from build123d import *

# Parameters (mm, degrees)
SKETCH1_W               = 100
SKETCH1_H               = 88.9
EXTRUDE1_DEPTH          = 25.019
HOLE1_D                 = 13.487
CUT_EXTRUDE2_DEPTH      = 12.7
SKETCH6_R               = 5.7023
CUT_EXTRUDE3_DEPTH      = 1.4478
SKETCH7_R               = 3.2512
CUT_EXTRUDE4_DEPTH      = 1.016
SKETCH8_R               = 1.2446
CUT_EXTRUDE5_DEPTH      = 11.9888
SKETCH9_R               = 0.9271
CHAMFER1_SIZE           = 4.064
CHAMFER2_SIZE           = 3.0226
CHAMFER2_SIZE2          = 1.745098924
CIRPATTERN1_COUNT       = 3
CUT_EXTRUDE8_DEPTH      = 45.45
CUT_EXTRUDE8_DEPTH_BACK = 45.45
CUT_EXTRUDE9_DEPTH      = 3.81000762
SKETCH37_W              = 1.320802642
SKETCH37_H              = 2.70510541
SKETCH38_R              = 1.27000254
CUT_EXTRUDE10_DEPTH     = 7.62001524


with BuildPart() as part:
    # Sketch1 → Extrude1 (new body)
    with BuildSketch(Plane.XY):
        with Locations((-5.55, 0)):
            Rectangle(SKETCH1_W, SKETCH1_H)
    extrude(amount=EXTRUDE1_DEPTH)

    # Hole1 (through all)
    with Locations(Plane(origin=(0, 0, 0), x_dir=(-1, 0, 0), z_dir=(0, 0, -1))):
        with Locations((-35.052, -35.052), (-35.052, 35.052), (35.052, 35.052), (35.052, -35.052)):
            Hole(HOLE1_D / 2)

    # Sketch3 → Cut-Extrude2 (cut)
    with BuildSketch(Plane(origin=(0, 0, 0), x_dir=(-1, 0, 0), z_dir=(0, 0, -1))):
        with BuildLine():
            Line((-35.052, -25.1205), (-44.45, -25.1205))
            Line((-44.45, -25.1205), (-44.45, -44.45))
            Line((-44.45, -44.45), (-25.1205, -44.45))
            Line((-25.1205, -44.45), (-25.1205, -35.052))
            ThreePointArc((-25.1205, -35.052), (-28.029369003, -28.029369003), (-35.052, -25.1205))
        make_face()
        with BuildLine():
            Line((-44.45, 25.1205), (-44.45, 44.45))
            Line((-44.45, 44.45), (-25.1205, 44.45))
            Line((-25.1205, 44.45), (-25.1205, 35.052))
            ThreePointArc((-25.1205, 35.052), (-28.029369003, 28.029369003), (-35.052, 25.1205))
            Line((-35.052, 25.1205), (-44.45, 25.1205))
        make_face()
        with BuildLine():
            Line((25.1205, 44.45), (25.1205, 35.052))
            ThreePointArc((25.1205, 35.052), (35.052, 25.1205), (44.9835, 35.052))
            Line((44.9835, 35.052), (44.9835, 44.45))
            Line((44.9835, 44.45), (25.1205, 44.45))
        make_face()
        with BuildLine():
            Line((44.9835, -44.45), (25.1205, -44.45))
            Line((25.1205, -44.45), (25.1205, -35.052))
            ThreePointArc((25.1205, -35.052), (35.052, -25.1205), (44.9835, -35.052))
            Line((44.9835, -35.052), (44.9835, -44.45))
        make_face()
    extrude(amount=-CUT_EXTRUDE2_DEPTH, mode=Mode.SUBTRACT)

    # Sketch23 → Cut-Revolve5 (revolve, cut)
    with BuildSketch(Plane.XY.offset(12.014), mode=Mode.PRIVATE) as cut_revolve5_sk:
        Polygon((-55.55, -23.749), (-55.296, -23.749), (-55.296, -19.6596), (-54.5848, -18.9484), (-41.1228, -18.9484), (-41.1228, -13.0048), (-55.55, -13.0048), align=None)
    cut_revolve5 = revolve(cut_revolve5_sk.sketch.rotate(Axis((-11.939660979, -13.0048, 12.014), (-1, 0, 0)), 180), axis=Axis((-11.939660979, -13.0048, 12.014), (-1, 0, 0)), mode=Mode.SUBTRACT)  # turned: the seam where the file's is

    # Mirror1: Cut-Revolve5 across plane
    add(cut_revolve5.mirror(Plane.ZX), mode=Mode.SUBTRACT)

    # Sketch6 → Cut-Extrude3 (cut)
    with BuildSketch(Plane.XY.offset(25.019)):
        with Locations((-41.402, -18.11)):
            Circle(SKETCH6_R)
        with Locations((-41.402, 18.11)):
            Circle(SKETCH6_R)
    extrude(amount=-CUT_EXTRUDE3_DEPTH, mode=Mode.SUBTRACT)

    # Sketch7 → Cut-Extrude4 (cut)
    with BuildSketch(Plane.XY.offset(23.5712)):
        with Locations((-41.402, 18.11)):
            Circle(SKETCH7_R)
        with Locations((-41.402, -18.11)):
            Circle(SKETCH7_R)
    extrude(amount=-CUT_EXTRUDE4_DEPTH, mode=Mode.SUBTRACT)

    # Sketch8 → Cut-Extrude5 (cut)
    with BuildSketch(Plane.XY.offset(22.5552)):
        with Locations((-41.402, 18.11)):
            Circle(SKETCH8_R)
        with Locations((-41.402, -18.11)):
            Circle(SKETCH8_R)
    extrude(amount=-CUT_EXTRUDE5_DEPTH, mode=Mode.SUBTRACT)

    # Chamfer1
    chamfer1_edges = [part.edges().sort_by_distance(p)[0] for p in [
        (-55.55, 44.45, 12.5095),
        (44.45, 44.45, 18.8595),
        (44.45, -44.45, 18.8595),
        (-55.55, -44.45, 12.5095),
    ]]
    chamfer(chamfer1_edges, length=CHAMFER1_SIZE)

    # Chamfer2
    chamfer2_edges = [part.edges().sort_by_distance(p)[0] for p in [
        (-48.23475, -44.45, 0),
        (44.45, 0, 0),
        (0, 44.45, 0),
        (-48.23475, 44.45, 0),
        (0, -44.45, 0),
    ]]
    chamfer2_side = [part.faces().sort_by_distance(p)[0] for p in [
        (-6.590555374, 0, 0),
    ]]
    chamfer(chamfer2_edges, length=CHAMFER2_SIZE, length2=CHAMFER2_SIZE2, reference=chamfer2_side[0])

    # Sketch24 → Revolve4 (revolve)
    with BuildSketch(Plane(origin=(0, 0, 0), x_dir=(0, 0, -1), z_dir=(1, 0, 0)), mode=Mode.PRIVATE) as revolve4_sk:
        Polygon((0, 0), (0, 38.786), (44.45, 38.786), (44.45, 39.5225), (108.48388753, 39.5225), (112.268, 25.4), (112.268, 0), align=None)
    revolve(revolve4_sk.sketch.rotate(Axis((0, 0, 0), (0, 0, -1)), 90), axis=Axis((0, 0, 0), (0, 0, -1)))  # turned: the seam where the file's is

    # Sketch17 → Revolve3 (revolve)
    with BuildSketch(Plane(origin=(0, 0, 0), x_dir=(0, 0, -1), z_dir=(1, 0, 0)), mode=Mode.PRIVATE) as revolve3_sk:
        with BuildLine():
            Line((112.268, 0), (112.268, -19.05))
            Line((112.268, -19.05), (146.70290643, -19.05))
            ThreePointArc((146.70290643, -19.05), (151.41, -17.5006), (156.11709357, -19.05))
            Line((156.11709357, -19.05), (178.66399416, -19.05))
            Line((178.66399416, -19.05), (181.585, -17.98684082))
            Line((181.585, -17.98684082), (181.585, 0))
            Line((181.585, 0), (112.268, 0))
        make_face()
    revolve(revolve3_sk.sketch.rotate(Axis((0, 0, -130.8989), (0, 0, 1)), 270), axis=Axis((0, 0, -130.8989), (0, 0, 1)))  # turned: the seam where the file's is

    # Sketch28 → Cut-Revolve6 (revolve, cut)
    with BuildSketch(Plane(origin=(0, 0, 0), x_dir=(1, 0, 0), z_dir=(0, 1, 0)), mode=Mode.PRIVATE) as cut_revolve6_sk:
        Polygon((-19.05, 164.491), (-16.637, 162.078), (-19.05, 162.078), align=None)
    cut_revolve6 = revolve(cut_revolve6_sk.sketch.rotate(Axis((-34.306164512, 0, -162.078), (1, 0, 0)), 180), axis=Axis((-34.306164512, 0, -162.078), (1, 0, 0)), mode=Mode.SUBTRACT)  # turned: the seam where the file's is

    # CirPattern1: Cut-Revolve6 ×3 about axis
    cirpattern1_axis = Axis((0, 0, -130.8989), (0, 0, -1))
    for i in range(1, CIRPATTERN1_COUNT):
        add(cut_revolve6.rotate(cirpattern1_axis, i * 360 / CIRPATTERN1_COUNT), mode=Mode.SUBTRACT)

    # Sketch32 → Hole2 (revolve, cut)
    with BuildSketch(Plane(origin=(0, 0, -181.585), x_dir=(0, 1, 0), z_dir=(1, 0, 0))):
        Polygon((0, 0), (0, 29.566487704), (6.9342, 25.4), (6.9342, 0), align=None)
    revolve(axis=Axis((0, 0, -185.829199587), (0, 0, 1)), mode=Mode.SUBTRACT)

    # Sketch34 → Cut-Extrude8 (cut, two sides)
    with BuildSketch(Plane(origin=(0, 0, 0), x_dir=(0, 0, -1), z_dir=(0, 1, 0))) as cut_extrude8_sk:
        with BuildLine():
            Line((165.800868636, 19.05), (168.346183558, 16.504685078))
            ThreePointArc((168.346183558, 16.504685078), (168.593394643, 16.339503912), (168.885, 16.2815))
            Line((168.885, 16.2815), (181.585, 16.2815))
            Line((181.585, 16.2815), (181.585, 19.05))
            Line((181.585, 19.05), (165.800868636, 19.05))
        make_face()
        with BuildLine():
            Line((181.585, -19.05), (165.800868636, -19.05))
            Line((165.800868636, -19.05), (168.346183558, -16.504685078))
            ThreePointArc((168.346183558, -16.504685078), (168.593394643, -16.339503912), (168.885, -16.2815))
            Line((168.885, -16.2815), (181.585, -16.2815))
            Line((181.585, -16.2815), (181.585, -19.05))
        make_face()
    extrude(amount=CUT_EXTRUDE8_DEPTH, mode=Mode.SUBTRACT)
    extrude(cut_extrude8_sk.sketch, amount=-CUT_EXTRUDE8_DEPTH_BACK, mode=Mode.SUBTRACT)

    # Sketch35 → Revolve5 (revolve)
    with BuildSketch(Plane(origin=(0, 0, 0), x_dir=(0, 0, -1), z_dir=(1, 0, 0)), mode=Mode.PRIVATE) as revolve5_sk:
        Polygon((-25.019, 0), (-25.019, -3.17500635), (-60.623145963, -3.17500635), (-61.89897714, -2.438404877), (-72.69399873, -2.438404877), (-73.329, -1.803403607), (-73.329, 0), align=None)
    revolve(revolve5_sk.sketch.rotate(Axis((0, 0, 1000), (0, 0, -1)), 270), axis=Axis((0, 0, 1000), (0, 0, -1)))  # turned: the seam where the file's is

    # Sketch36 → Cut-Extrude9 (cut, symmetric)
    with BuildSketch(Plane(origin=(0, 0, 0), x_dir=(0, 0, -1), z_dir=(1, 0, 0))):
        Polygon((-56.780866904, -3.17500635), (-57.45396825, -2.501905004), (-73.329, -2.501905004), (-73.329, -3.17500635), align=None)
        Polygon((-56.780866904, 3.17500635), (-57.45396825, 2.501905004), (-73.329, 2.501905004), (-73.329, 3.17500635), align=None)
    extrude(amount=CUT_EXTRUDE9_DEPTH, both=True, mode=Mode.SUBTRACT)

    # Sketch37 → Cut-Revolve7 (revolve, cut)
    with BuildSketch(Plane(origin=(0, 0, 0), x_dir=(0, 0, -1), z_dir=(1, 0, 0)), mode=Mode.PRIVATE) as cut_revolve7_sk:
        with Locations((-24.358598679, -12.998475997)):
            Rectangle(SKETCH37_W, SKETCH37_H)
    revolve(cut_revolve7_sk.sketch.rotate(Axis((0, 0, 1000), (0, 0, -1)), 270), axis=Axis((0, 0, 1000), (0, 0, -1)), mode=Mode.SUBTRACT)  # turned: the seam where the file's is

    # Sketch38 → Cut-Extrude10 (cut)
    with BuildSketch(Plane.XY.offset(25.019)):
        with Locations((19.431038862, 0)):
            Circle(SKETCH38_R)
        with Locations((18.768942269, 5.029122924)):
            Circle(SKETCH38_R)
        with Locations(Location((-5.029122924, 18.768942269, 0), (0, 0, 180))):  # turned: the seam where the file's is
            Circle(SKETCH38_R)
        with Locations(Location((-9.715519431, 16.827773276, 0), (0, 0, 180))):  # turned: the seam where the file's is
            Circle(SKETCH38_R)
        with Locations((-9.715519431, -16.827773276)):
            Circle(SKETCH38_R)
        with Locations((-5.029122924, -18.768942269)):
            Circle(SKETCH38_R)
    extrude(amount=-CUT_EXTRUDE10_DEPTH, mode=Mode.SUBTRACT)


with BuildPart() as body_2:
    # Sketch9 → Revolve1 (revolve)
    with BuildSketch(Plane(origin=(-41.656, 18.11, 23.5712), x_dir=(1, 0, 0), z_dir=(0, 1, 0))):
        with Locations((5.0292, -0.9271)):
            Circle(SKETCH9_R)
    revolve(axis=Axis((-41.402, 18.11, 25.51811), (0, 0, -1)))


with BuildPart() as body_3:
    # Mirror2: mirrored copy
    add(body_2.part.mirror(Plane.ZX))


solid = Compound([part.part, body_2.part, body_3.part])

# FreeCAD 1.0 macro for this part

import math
import FreeCAD as App
import Part
import Sketcher
from FreeCAD import Vector
Q = App.Units.Quantity


def edges_at(feature, points):
    """Names of the edges that pass closest to the given points."""
    edges = feature.Shape.Edges
    near = lambda p: min(range(len(edges)), key=lambda i: edges[i].distToShape(Part.Vertex(*p))[0])
    return sorted({f"Edge{near(p) + 1}" for p in points})


def add_polygon(sketch, points):
    """Adds a closed chain of lines whose ends are joined by coincident constraints."""
    first, n = sketch.GeometryCount, len(points)
    for a, b in zip(points, points[1:] + points[:1]):
        sketch.addGeometry(Part.LineSegment(App.Vector(*a, 0), App.Vector(*b, 0)), False)
    for i in range(n):
        sketch.addConstraint(Sketcher.Constraint("Coincident", first + i, 2, first + (i + 1) % n, 1))

doc = App.newDocument("Part")
body = doc.addObject("PartDesign::Body", "Body")

sketch1 = body.newObject("Sketcher::SketchObject", "Sketch")
sketch1.AttachmentSupport = (doc.getObject("XY_Plane"), [""])
sketch1.MapMode = "FlatFace"
add_polygon(sketch1, [(-55.55, 44.45), (-55.55, -44.45), (44.45, -44.45), (44.45, 44.45)])
sketch1.addConstraint([
    Sketcher.Constraint("Vertical", 0),
    Sketcher.Constraint("Horizontal", 1),
    Sketcher.Constraint("Vertical", 2),
    Sketcher.Constraint("Horizontal", 3),
    Sketcher.Constraint("DistanceY", 0, 2, 0, 1, Q("3.5 in")),
    Sketcher.Constraint("DistanceY", 0, 2, -1, 1, Q("1.75 in")),
    Sketcher.Constraint("DistanceX", -1, 1, 1, 2, Q("1.75 in")),
    Sketcher.Constraint("DistanceX", 1, 1, 1, 2, 100.0),
])
pad1 = body.newObject("PartDesign::Pad", "Pad")
pad1.Profile = sketch1
pad1.Length = Q("0.985 in")

sketch2 = body.newObject("Sketcher::SketchObject", "Sketch001")
sketch2.AttachmentSupport = (doc.getObject("XY_Plane"), [""])
sketch2.MapMode = "FlatFace"
sketch2.addGeometry([
    Part.Circle(Vector(35.052, -35.052, 0), Vector(0, 0, 1), 6.7435),
    Part.Circle(Vector(35.052, 35.052, 0), Vector(0, 0, 1), 6.7435),
    Part.Circle(Vector(-35.052, 35.052, 0), Vector(0, 0, 1), 6.7435),
    Part.Circle(Vector(-35.052, -35.052, 0), Vector(0, 0, 1), 6.7435),
], False)
sketch2.addConstraint([
    Sketcher.Constraint("Equal", 0, 1),
    Sketcher.Constraint("Equal", 1, 2),
    Sketcher.Constraint("Equal", 2, 3),
    Sketcher.Constraint("Symmetric", 0, 3, 2, 3, -1, 1),
    Sketcher.Constraint("Symmetric", 1, 3, 3, 3, -1, 1),
    Sketcher.Constraint("Symmetric", 1, 3, 2, 3, -2),
    Sketcher.Constraint("Diameter", 0, 13.487),
    Sketcher.Constraint("DistanceX", -1, 1, 0, 3, Q("1.38 in")),
    Sketcher.Constraint("DistanceY", 0, 3, -1, 1, Q("1.38 in")),
])
doc.recompute()
hole = body.newObject("PartDesign::Hole", "Hole")
hole.Profile = sketch2
hole.ThreadType = "None"
hole.Diameter = 13.487
hole.DepthType = "ThroughAll"
hole.Reversed = True

sketch3 = body.newObject("Sketcher::SketchObject", "Sketch002")
sketch3.AttachmentSupport = (doc.getObject("XY_Plane"), [""])
sketch3.MapMode = "FlatFace"
sketch3.addGeometry([
    Part.LineSegment(Vector(35.052, -25.1205, 0), Vector(44.45, -25.1205, 0)),
    Part.LineSegment(Vector(44.45, -25.1205, 0), Vector(44.45, -44.45, 0)),
    Part.LineSegment(Vector(44.45, -44.45, 0), Vector(25.1205, -44.45, 0)),
    Part.LineSegment(Vector(25.1205, -44.45, 0), Vector(25.1205, -35.052, 0)),
    Part.ArcOfCircle(Part.Circle(Vector(35.052, -35.052, 0), Vector(0, 0, 1), 9.9315), math.radians(90), math.radians(180)),
    Part.LineSegment(Vector(44.45, 44.45, 0), Vector(44.45, 25.1205, 0)),
    Part.LineSegment(Vector(44.45, 25.1205, 0), Vector(35.052, 25.1205, 0)),
    Part.ArcOfCircle(Part.Circle(Vector(35.052, 35.052, 0), Vector(0, 0, 1), 9.9315), math.radians(-180), math.radians(-90)),
    Part.LineSegment(Vector(25.1205, 35.052, 0), Vector(25.1205, 44.45, 0)),
    Part.LineSegment(Vector(25.1205, 44.45, 0), Vector(44.45, 44.45, 0)),
    Part.LineSegment(Vector(-25.1205, 44.45, 0), Vector(-25.1205, 35.052, 0)),
    Part.ArcOfCircle(Part.Circle(Vector(-35.052, 35.052, 0), Vector(0, 0, 1), 9.9315), math.radians(180), math.radians(360)),
    Part.LineSegment(Vector(-44.9835, 35.052, 0), Vector(-44.9835, 44.45, 0)),
    Part.LineSegment(Vector(-44.9835, 44.45, 0), Vector(-25.1205, 44.45, 0)),
    Part.LineSegment(Vector(-25.1205, -44.45, 0), Vector(-44.9835, -44.45, 0)),
    Part.LineSegment(Vector(-44.9835, -44.45, 0), Vector(-44.9835, -35.052, 0)),
    Part.ArcOfCircle(Part.Circle(Vector(-35.052, -35.052, 0), Vector(0, 0, 1), 9.9315), math.radians(0), math.radians(180)),
    Part.LineSegment(Vector(-25.1205, -35.052, 0), Vector(-25.1205, -44.45, 0)),
], False)
sketch3.addConstraint([
    Sketcher.Constraint("Coincident", 0, 2, 1, 1),
    Sketcher.Constraint("Coincident", 1, 2, 2, 1),
    Sketcher.Constraint("Coincident", 2, 2, 3, 1),
    Sketcher.Constraint("Tangent", 3, 2, 4, 2),
    Sketcher.Constraint("Tangent", 4, 1, 0, 1),
    Sketcher.Constraint("Coincident", 5, 2, 6, 1),
    Sketcher.Constraint("Tangent", 6, 2, 7, 2),
    Sketcher.Constraint("Tangent", 7, 1, 8, 1),
    Sketcher.Constraint("Coincident", 8, 2, 9, 1),
    Sketcher.Constraint("Coincident", 9, 2, 5, 1),
    Sketcher.Constraint("Tangent", 10, 2, 11, 2),
    Sketcher.Constraint("Tangent", 11, 1, 12, 1),
    Sketcher.Constraint("Coincident", 12, 2, 13, 1),
    Sketcher.Constraint("Coincident", 13, 2, 10, 1),
    Sketcher.Constraint("Coincident", 14, 2, 15, 1),
    Sketcher.Constraint("Tangent", 15, 2, 16, 2),
    Sketcher.Constraint("Tangent", 16, 1, 17, 1),
    Sketcher.Constraint("Coincident", 17, 2, 14, 1),
    Sketcher.Constraint("Horizontal", 0),
    Sketcher.Constraint("Vertical", 1),
    Sketcher.Constraint("Horizontal", 2),
    Sketcher.Constraint("Vertical", 3),
    Sketcher.Constraint("Vertical", 5),
    Sketcher.Constraint("Horizontal", 6),
    Sketcher.Constraint("Vertical", 8),
    Sketcher.Constraint("Horizontal", 9),
    Sketcher.Constraint("Vertical", 10),
    Sketcher.Constraint("Vertical", 12),
    Sketcher.Constraint("Horizontal", 13),
    Sketcher.Constraint("Horizontal", 14),
    Sketcher.Constraint("Vertical", 15),
    Sketcher.Constraint("Vertical", 17),
    Sketcher.Constraint("Equal", 4, 7),
    Sketcher.Constraint("Equal", 7, 11),
    Sketcher.Constraint("Equal", 11, 16),
    Sketcher.Constraint("Symmetric", 4, 3, 11, 3, -1, 1),
    Sketcher.Constraint("Symmetric", 7, 3, 16, 3, -1, 1),
    Sketcher.Constraint("Symmetric", 7, 3, 11, 3, -2),
    Sketcher.Constraint("Symmetric", 1, 2, 9, 2, -1),
    Sketcher.Constraint("Horizontal", 9, 2, 12, 2),
    Sketcher.Constraint("Horizontal", 2, 2, 14, 2),
    Sketcher.Constraint("Equal", 9, 1),
    Sketcher.Constraint("DistanceX", 0, 1, 0, 2, Q("0.37 in")),
    Sketcher.Constraint("DistanceX", -1, 1, 4, 3, Q("1.38 in")),
    Sketcher.Constraint("DistanceY", 4, 3, -1, 1, Q("1.38 in")),
    Sketcher.Constraint("Radius", 4, 9.9315),
])
pocket1 = body.newObject("PartDesign::Pocket", "Pocket")
pocket1.Profile = sketch3
pocket1.Length = Q("0.5 in")
pocket1.Reversed = True

sketch4 = body.newObject("Sketcher::SketchObject", "Sketch003")
sketch4.AttachmentSupport = (doc.getObject("XY_Plane"), [""])
sketch4.MapMode = "FlatFace"
sketch4.AttachmentOffset = App.Placement(Vector(0, 0, 12.014), App.Rotation())
add_polygon(sketch4, [(-55.55, -23.749), (-55.296, -23.749), (-55.296, -19.6596), (-54.5848, -18.9484), (-41.1228, -18.9484), (-41.1228, -13.0048), (-55.55, -13.0048)])
sketch4.addGeometry(Part.LineSegment(Vector(-41.1228, -13.0048, 0), Vector(-55.55, -13.0048, 0)), True)
sketch4.addConstraint([
    Sketcher.Constraint("Horizontal", 0),
    Sketcher.Constraint("Vertical", 1),
    Sketcher.Constraint("Horizontal", 3),
    Sketcher.Constraint("Vertical", 4),
    Sketcher.Constraint("Horizontal", 5),
    Sketcher.Constraint("Vertical", 6),
    Sketcher.Constraint("Horizontal", 7),
    Sketcher.Constraint("Coincident", 7, 1, 4, 2),
    Sketcher.Constraint("Vertical", 6, 2, 7, 2),
    Sketcher.Constraint("Angle", 2, Q("45 deg")),
    Sketcher.Constraint("DistanceX", 0, 1, 0, 2, Q("0.01 in")),
    Sketcher.Constraint("DistanceX", 3, 1, 3, 2, Q("0.53 in")),
    Sketcher.Constraint("DistanceX", 5, 2, 5, 1, Q("0.568 in")),
    Sketcher.Constraint("DistanceY", 1, 1, 1, 2, Q("0.161 in")),
    Sketcher.Constraint("DistanceY", 4, 1, 4, 2, Q("0.234 in")),
    Sketcher.Constraint("DistanceY", 0, 2, -1, 1, Q("0.935 in")),
    Sketcher.Constraint("DistanceX", 0, 2, -1, 1, 55.296),
])
groove = body.newObject("PartDesign::Groove", "Groove")
groove.Profile = sketch4
groove.ReferenceAxis = (sketch4, ["Axis0"])
groove.Angle = 360
doc.recompute()

mirrored = body.newObject("PartDesign::Mirrored", "Mirrored")
mirrored.Originals = [groove]
mirrored.MirrorPlane = (doc.getObject("XZ_Plane"), [""])
body.Tip = mirrored

sketch5 = body.newObject("Sketcher::SketchObject", "Sketch004")
sketch5.AttachmentSupport = (doc.getObject("XY_Plane"), [""])
sketch5.MapMode = "FlatFace"
sketch5.AttachmentOffset = App.Placement(Vector(0, 0, 0.985 * 25.4), App.Rotation())
sketch5.addGeometry([
    Part.Circle(Vector(-41.402, -18.11, 0), Vector(0, 0, 1), 5.7023),
    Part.Circle(Vector(-41.402, 18.11, 0), Vector(0, 0, 1), 5.7023),
], False)
sketch5.addConstraint([
    Sketcher.Constraint("Equal", 0, 1),
    Sketcher.Constraint("Symmetric", 0, 3, 1, 3, -1),
    Sketcher.Constraint("Diameter", 0, Q("0.449 in")),
    Sketcher.Constraint("DistanceX", 0, 3, -1, 1, Q("1.63 in")),
    Sketcher.Constraint("DistanceY", 0, 3, -1, 1, 18.11),
])
pocket2 = body.newObject("PartDesign::Pocket", "Pocket001")
pocket2.Profile = sketch5
pocket2.Length = Q("0.057 in")

sketch6 = body.newObject("Sketcher::SketchObject", "Sketch005")
sketch6.AttachmentSupport = (doc.getObject("XY_Plane"), [""])
sketch6.MapMode = "FlatFace"
sketch6.AttachmentOffset = App.Placement(Vector(0, 0, 0.928 * 25.4), App.Rotation())
sketch6.addGeometry([
    Part.Circle(Vector(-41.402, 18.11, 0), Vector(0, 0, 1), 3.2512),
    Part.Circle(Vector(-41.402, -18.11, 0), Vector(0, 0, 1), 3.2512),
], False)
sketch6.addConstraint([
    Sketcher.Constraint("Equal", 0, 1),
    Sketcher.Constraint("Symmetric", 0, 3, 1, 3, -1),
    Sketcher.Constraint("Diameter", 0, Q("0.256 in")),
    Sketcher.Constraint("DistanceX", 0, 3, -1, 1, Q("1.63 in")),
    Sketcher.Constraint("DistanceY", -1, 1, 0, 3, 18.11),
])
pocket3 = body.newObject("PartDesign::Pocket", "Pocket002")
pocket3.Profile = sketch6
pocket3.Length = Q("0.04 in")

sketch7 = body.newObject("Sketcher::SketchObject", "Sketch006")
sketch7.AttachmentSupport = (doc.getObject("XY_Plane"), [""])
sketch7.MapMode = "FlatFace"
sketch7.AttachmentOffset = App.Placement(Vector(0, 0, 0.888 * 25.4), App.Rotation())
sketch7.addGeometry([
    Part.Circle(Vector(-41.402, 18.11, 0), Vector(0, 0, 1), 1.2446),
    Part.Circle(Vector(-41.402, -18.11, 0), Vector(0, 0, 1), 1.2446),
], False)
sketch7.addConstraint([
    Sketcher.Constraint("Equal", 0, 1),
    Sketcher.Constraint("Symmetric", 0, 3, 1, 3, -1),
    Sketcher.Constraint("Diameter", 0, Q("0.098 in")),
    Sketcher.Constraint("DistanceX", 0, 3, -1, 1, Q("1.63 in")),
    Sketcher.Constraint("DistanceY", -1, 1, 0, 3, 18.11),
])
pocket4 = body.newObject("PartDesign::Pocket", "Pocket003")
pocket4.Profile = sketch7
pocket4.Length = Q("0.472 in")
doc.recompute()

chamfer = body.newObject("PartDesign::Chamfer", "Chamfer")
chamfer.Base = (pocket4, edges_at(pocket4, [
    (-55.55, 44.45, 12.509),
    (44.45, 44.45, 18.86),
    (44.45, -44.45, 18.86),
    (-55.55, -44.45, 12.509),
]))
chamfer.Size = Q("0.16 in")
doc.recompute()

chamfer2 = body.newObject("PartDesign::Chamfer", "Chamfer001")
chamfer2.Base = (chamfer, edges_at(chamfer, [
    (-48.235, -44.45, 0),
    (44.45, 0, 0),
    (0, 44.45, 0),
    (-48.235, 44.45, 0),
    (0, -44.45, 0),
]))
chamfer2.ChamferType = "Two distances"
chamfer2.Size = Q("0.119 in")
chamfer2.Size2 = 1.745099

sketch8 = body.newObject("Sketcher::SketchObject", "Sketch007")
sketch8.AttachmentSupport = (doc.getObject("YZ_Plane"), [""])
sketch8.MapMode = "FlatFace"
add_polygon(sketch8, [(38.786, 0), (0, 0), (0, -112.268), (25.4, -112.268), (39.5225, -108.483888), (39.5225, -44.45), (38.786, -44.45)])
sketch8.addConstraint([
    Sketcher.Constraint("Horizontal", 0),
    Sketcher.Constraint("Vertical", 1),
    Sketcher.Constraint("Horizontal", 2),
    Sketcher.Constraint("Vertical", 4),
    Sketcher.Constraint("Horizontal", 5),
    Sketcher.Constraint("Vertical", 6),
    Sketcher.Constraint("Coincident", 0, 2, -1, 1),
    Sketcher.Constraint("DistanceX", 2, 1, 2, 2, Q("1 in")),
    Sketcher.Constraint("Angle", 3, Q("15 deg")),
    Sketcher.Constraint("DistanceY", 1, 2, 1, 1, Q("4.42 in")),
    Sketcher.Constraint("DistanceY", 6, 1, 6, 2, Q("1.75 in")),
    Sketcher.Constraint("DistanceX", 0, 2, 0, 1, 38.786),
    Sketcher.Constraint("DistanceX", 5, 2, 5, 1, 0.7365),
])
revolution = body.newObject("PartDesign::Revolution", "Revolution")
revolution.Profile = sketch8
revolution.ReferenceAxis = (sketch8, ["V_Axis"])
revolution.Angle = 360

sketch9 = body.newObject("Sketcher::SketchObject", "Sketch008")
sketch9.AttachmentSupport = (doc.getObject("YZ_Plane"), [""])
sketch9.MapMode = "FlatFace"
sketch9.addGeometry([
    Part.LineSegment(Vector(0, -112.268, 0), Vector(-19.05, -112.268, 0)),
    Part.LineSegment(Vector(-19.05, -112.268, 0), Vector(-19.05, -146.702906, 0)),
    Part.ArcOfCircle(Part.Circle(Vector(-25.4254, -151.41, 0), Vector(0, 0, 1), 7.9248), math.radians(-36.439242), math.radians(36.439242)),
    Part.LineSegment(Vector(-19.05, -156.117094, 0), Vector(-19.05, -178.663994, 0)),
    Part.LineSegment(Vector(-19.05, -178.663994, 0), Vector(-17.986841, -181.585, 0)),
    Part.LineSegment(Vector(-17.986841, -181.585, 0), Vector(0, -181.585, 0)),
    Part.LineSegment(Vector(0, -181.585, 0), Vector(0, -112.268, 0)),
], False)
sketch9.addConstraint([
    Sketcher.Constraint("Coincident", 0, 2, 1, 1),
    Sketcher.Constraint("Coincident", 1, 2, 2, 2),
    Sketcher.Constraint("Coincident", 2, 1, 3, 1),
    Sketcher.Constraint("Coincident", 3, 2, 4, 1),
    Sketcher.Constraint("Coincident", 4, 2, 5, 1),
    Sketcher.Constraint("Coincident", 5, 2, 6, 1),
    Sketcher.Constraint("Coincident", 6, 2, 0, 1),
    Sketcher.Constraint("Horizontal", 0),
    Sketcher.Constraint("Vertical", 1),
    Sketcher.Constraint("Vertical", 3),
    Sketcher.Constraint("Horizontal", 5),
    Sketcher.Constraint("Vertical", 6),
    Sketcher.Constraint("PointOnObject", 5, 2, -2),
    Sketcher.Constraint("Vertical", 1, 2, 2, 1),
    Sketcher.Constraint("Angle", 4, Q("-70 deg")),
    Sketcher.Constraint("Radius", 2, Q("0.312 in")),
    Sketcher.Constraint("DistanceX", 0, 2, 0, 1, Q("0.75 in")),
    Sketcher.Constraint("DistanceY", 0, 2, -1, 1, Q("4.42 in")),
    Sketcher.Constraint("DistanceX", 2, 3, -1, 1, Q("1.001 in")),
    Sketcher.Constraint("DistanceY", 3, 2, 3, 1, 22.546901),
    Sketcher.Constraint("DistanceY", 6, 1, 6, 2, 69.317),
    Sketcher.Constraint("DistanceX", 5, 1, 5, 2, 17.986841),
])
revolution2 = body.newObject("PartDesign::Revolution", "Revolution001")
revolution2.Profile = sketch9
revolution2.ReferenceAxis = (sketch9, ["V_Axis"])
revolution2.Angle = 360

sketch10 = body.newObject("Sketcher::SketchObject", "Sketch009")
sketch10.AttachmentSupport = (doc.getObject("XZ_Plane"), [""])
sketch10.MapMode = "FlatFace"
add_polygon(sketch10, [(-16.637, -162.078), (-19.05, -164.491), (-19.05, -162.078)])
sketch10.addGeometry(Part.LineSegment(Vector(-19.05, -162.078, 0), Vector(-16.637, -162.078, 0)), True)
sketch10.addConstraint([
    Sketcher.Constraint("Vertical", 1),
    Sketcher.Constraint("Horizontal", 2),
    Sketcher.Constraint("Horizontal", 3),
    Sketcher.Constraint("Coincident", 3, 1, 1, 2),
    Sketcher.Constraint("Equal", 2, 3),
    Sketcher.Constraint("Equal", 3, 1),
    Sketcher.Constraint("DistanceX", 2, 1, 2, 2, Q("0.095 in")),
    Sketcher.Constraint("DistanceX", 0, 2, -1, 1, Q("0.75 in")),
    Sketcher.Constraint("DistanceY", 0, 2, -1, 1, 164.491),
])
groove2 = body.newObject("PartDesign::Groove", "Groove001")
groove2.Profile = sketch10
groove2.ReferenceAxis = (sketch10, ["Axis0"])
groove2.Angle = 360
doc.recompute()

polarpattern = body.newObject("PartDesign::PolarPattern", "PolarPattern")
polarpattern.Originals = [groove2]
polarpattern.Axis = (doc.getObject("Z_Axis"), [""])
polarpattern.Angle = 360
polarpattern.Occurrences = 3
body.Tip = polarpattern

sketch11 = body.newObject("Sketcher::SketchObject", "Sketch010")
sketch11.AttachmentSupport = (doc.getObject("YZ_Plane"), [""])
sketch11.MapMode = "FlatFace"
add_polygon(sketch11, [(0, -152.018512), (0, -181.585), (6.9342, -181.585), (6.9342, -156.185)])
sketch11.addConstraint([
    Sketcher.Constraint("Vertical", 0),
    Sketcher.Constraint("Horizontal", 1),
    Sketcher.Constraint("Vertical", 2),
    Sketcher.Constraint("PointOnObject", 0, 2, -2),
    Sketcher.Constraint("DistanceY", 2, 1, 2, 2, Q("1 in")),
    Sketcher.Constraint("Angle", 3, Q("149 deg")),
    Sketcher.Constraint("DistanceX", 1, 1, 1, 2, Q("0.273 in")),
    Sketcher.Constraint("DistanceY", 0, 2, -1, 1, 181.585),
])
groove3 = body.newObject("PartDesign::Groove", "Groove002")
groove3.Profile = sketch11
groove3.ReferenceAxis = (sketch11, ["V_Axis"])
groove3.Angle = 360

sketch12 = body.newObject("Sketcher::SketchObject", "Sketch011")
sketch12.AttachmentSupport = (doc.getObject("XZ_Plane"), [""])
sketch12.MapMode = "FlatFace"
sketch12.addGeometry([
    Part.LineSegment(Vector(-19.05, -165.800869, 0), Vector(-16.504685, -168.346184, 0)),
    Part.ArcOfCircle(Part.Circle(Vector(-17.043502, -168.885, 0), Vector(0, 0, 1), 0.762002), math.radians(0), math.radians(45)),
    Part.LineSegment(Vector(-16.2815, -168.885, 0), Vector(-16.2815, -181.585, 0)),
    Part.LineSegment(Vector(-16.2815, -181.585, 0), Vector(-19.05, -181.585, 0)),
    Part.LineSegment(Vector(-19.05, -181.585, 0), Vector(-19.05, -165.800869, 0)),
    Part.LineSegment(Vector(19.05, -165.800869, 0), Vector(19.05, -181.585, 0)),
    Part.LineSegment(Vector(19.05, -181.585, 0), Vector(16.2815, -181.585, 0)),
    Part.LineSegment(Vector(16.2815, -181.585, 0), Vector(16.2815, -168.885, 0)),
    Part.ArcOfCircle(Part.Circle(Vector(17.043502, -168.885, 0), Vector(0, 0, 1), 0.762002), math.radians(135), math.radians(180)),
    Part.LineSegment(Vector(16.504685, -168.346184, 0), Vector(19.05, -165.800869, 0)),
], False)
sketch12.addConstraint([
    Sketcher.Constraint("Tangent", 0, 2, 1, 2),
    Sketcher.Constraint("Tangent", 1, 1, 2, 1),
    Sketcher.Constraint("Coincident", 2, 2, 3, 1),
    Sketcher.Constraint("Coincident", 3, 2, 4, 1),
    Sketcher.Constraint("Coincident", 4, 2, 0, 1),
    Sketcher.Constraint("Coincident", 5, 2, 6, 1),
    Sketcher.Constraint("Coincident", 6, 2, 7, 1),
    Sketcher.Constraint("Tangent", 7, 2, 8, 2),
    Sketcher.Constraint("Tangent", 8, 1, 9, 1),
    Sketcher.Constraint("Coincident", 9, 2, 5, 1),
    Sketcher.Constraint("Vertical", 2),
    Sketcher.Constraint("Horizontal", 3),
    Sketcher.Constraint("Vertical", 4),
    Sketcher.Constraint("Vertical", 5),
    Sketcher.Constraint("Horizontal", 6),
    Sketcher.Constraint("Vertical", 7),
    Sketcher.Constraint("Equal", 1, 8),
    Sketcher.Constraint("Symmetric", 1, 3, 8, 3, -2),
    Sketcher.Constraint("Symmetric", 3, 2, 5, 2, -2),
    Sketcher.Constraint("Perpendicular", 0, 9),
    Sketcher.Constraint("Horizontal", 0, 2, 8, 1),
    Sketcher.Constraint("Radius", 1, Q("0.0300001 in")),
    Sketcher.Constraint("DistanceY", 2, 2, 2, 1, Q("0.5 in")),
    Sketcher.Constraint("DistanceX", 3, 2, 5, 2, Q("1.5 in")),
    Sketcher.Constraint("DistanceX", 3, 2, 3, 1, 2.7685),
    Sketcher.Constraint("DistanceY", 1, 3, -1, 1, 168.885),
])
pocket5 = body.newObject("PartDesign::Pocket", "Pocket004")
pocket5.Profile = sketch12
pocket5.Type = "ThroughAll"
pocket5.Midplane = True

sketch13 = body.newObject("Sketcher::SketchObject", "Sketch012")
sketch13.AttachmentSupport = (doc.getObject("YZ_Plane"), [""])
sketch13.MapMode = "FlatFace"
add_polygon(sketch13, [(-3.175006, 25.019), (0, 25.019), (0, 73.329), (-1.803404, 73.329), (-2.438405, 72.693999), (-2.438405, 61.898977), (-3.175006, 60.623146)])
sketch13.addConstraint([
    Sketcher.Constraint("Horizontal", 0),
    Sketcher.Constraint("Vertical", 1),
    Sketcher.Constraint("Horizontal", 2),
    Sketcher.Constraint("Vertical", 4),
    Sketcher.Constraint("Vertical", 6),
    Sketcher.Constraint("PointOnObject", 0, 2, -2),
    Sketcher.Constraint("Angle", 3, Q("-135 deg")),
    Sketcher.Constraint("Angle", 5, Q("-120 deg")),
    Sketcher.Constraint("DistanceX", 2, 2, 2, 1, Q("0.0710001 in")),
    Sketcher.Constraint("Distance", 5, Q("0.0580001 in")),
    Sketcher.Constraint("DistanceY", -1, 1, 0, 2, Q("0.985 in")),
    Sketcher.Constraint("DistanceX", 3, 2, -1, 1, Q("0.0960002 in")),
    Sketcher.Constraint("DistanceY", 1, 1, 1, 2, 48.31),
    Sketcher.Constraint("DistanceY", 4, 2, 4, 1, 10.795022),
])
revolution3 = body.newObject("PartDesign::Revolution", "Revolution002")
revolution3.Profile = sketch13
revolution3.ReferenceAxis = (sketch13, ["V_Axis"])
revolution3.Angle = 360

sketch14 = body.newObject("Sketcher::SketchObject", "Sketch013")
sketch14.AttachmentSupport = (doc.getObject("YZ_Plane"), [""])
sketch14.MapMode = "FlatFace"
add_polygon(sketch14, [(-3.175006, 56.780867), (-2.501905, 57.453968), (-2.501905, 73.329), (-3.175006, 73.329)])
add_polygon(sketch14, [(2.501905, 57.453968), (3.175006, 56.780867), (3.175006, 73.329), (2.501905, 73.329)])
sketch14.addConstraint([
    Sketcher.Constraint("Vertical", 1),
    Sketcher.Constraint("Horizontal", 2),
    Sketcher.Constraint("Vertical", 3),
    Sketcher.Constraint("Vertical", 5),
    Sketcher.Constraint("Horizontal", 6),
    Sketcher.Constraint("Vertical", 7),
    Sketcher.Constraint("Symmetric", 3, 2, 4, 2, -2),
    Sketcher.Constraint("Symmetric", 1, 2, 6, 2, -2),
    Sketcher.Constraint("Perpendicular", 0, 4),
    Sketcher.Constraint("Horizontal", 0, 2, 7, 2),
    Sketcher.Constraint("DistanceX", 2, 2, 2, 1, Q("0.0265001 in")),
    Sketcher.Constraint("DistanceX", 0, 2, -1, 1, Q("0.0985002 in")),
    Sketcher.Constraint("DistanceY", 1, 1, 1, 2, 15.875032),
    Sketcher.Constraint("DistanceY", -1, 1, 1, 2, 73.329),
])
pocket6 = body.newObject("PartDesign::Pocket", "Pocket005")
pocket6.Profile = sketch14
pocket6.Length = 7.620015
pocket6.Midplane = True

sketch15 = body.newObject("Sketcher::SketchObject", "Sketch014")
sketch15.AttachmentSupport = (doc.getObject("YZ_Plane"), [""])
sketch15.MapMode = "FlatFace"
add_polygon(sketch15, [(-11.645923, 25.019), (-14.351029, 25.019), (-14.351029, 23.698197), (-11.645923, 23.698197)])
sketch15.addConstraint([
    Sketcher.Constraint("Horizontal", 0),
    Sketcher.Constraint("Vertical", 1),
    Sketcher.Constraint("Horizontal", 2),
    Sketcher.Constraint("Vertical", 3),
    Sketcher.Constraint("DistanceY", 1, 2, 1, 1, Q("0.0520001 in")),
    Sketcher.Constraint("DistanceY", -1, 1, 0, 2, Q("0.985 in")),
    Sketcher.Constraint("DistanceX", 0, 2, 0, 1, 2.705105),
    Sketcher.Constraint("DistanceX", 0, 2, -1, 1, 14.351029),
])
groove4 = body.newObject("PartDesign::Groove", "Groove003")
groove4.Profile = sketch15
groove4.ReferenceAxis = (sketch15, ["V_Axis"])
groove4.Angle = 360

sketch16 = body.newObject("Sketcher::SketchObject", "Sketch015")
sketch16.AttachmentSupport = (doc.getObject("XY_Plane"), [""])
sketch16.MapMode = "FlatFace"
sketch16.AttachmentOffset = App.Placement(Vector(0, 0, 0.985 * 25.4), App.Rotation())
sketch16.addGeometry([
    Part.Circle(Vector(19.431039, 0, 0), Vector(0, 0, 1), 1.270003),
    Part.Circle(Vector(18.768942, 5.029123, 0), Vector(0, 0, 1), 1.270003),
    Part.Circle(Vector(-5.029123, 18.768942, 0), Vector(0, 0, 1), 1.270003),
    Part.Circle(Vector(-9.715519, 16.827773, 0), Vector(0, 0, 1), 1.270003),
    Part.Circle(Vector(-9.715519, -16.827773, 0), Vector(0, 0, 1), 1.270003),
    Part.Circle(Vector(-5.029123, -18.768942, 0), Vector(0, 0, 1), 1.270003),
], False)
sketch16.addConstraint([
    Sketcher.Constraint("Equal", 0, 1),
    Sketcher.Constraint("Equal", 1, 2),
    Sketcher.Constraint("Equal", 2, 3),
    Sketcher.Constraint("Equal", 3, 4),
    Sketcher.Constraint("Equal", 4, 5),
    Sketcher.Constraint("Symmetric", 3, 3, 4, 3, -1),
    Sketcher.Constraint("Symmetric", 2, 3, 5, 3, -1),
    Sketcher.Constraint("PointOnObject", 0, 3, -1),
    Sketcher.Constraint("Diameter", 0, Q("0.1000002 in")),
    Sketcher.Constraint("DistanceX", -1, 1, 0, 3, 19.431039),
    Sketcher.Constraint("DistanceX", 3, 3, -1, 1, 9.715519),
    Sketcher.Constraint("DistanceY", 1, 3, 2, 3, 13.739819),
    Sketcher.Constraint("DistanceX", 2, 3, 0, 3, 24.460162),
    Sketcher.Constraint("DistanceY", 3, 3, 2, 3, 1.941169),
    Sketcher.Constraint("DistanceX", 3, 3, 1, 3, 28.484462),
    Sketcher.Constraint("DistanceY", -1, 1, 1, 3, 5.029123),
])
pocket7 = body.newObject("PartDesign::Pocket", "Pocket006")
pocket7.Profile = sketch16
pocket7.Length = 7.620015
body2 = doc.addObject("PartDesign::Body", "Body001")

sketch17 = body2.newObject("Sketcher::SketchObject", "Sketch016")
sketch17.AttachmentSupport = (doc.getObject("XZ_Plane001"), [""])
sketch17.MapMode = "FlatFace"
sketch17.AttachmentOffset = App.Placement(Vector(0, 0, -18.11), App.Rotation())
sketch17.addGeometry(Part.Circle(Vector(-36.6268, 24.4983, 0), Vector(0, 0, 1), 0.9271), False)
sketch17.addGeometry(Part.LineSegment(Vector(-41.402, 24.4983, 0), Vector(-41.402, 14.4983, 0)), True)
sketch17.addConstraint([
    Sketcher.Constraint("Vertical", 1),
    Sketcher.Constraint("Horizontal", 0, 3, 1, 1),
    Sketcher.Constraint("Diameter", 0, Q("0.073 in")),
    Sketcher.Constraint("DistanceX", 1, 1, -1, 1, Q("1.63 in")),
    Sketcher.Constraint("DistanceX", 0, 3, -1, 1, Q("1.442 in")),
    Sketcher.Constraint("DistanceY", 1, 2, 1, 1, 10.0),
    Sketcher.Constraint("DistanceY", -1, 1, 0, 3, Q("0.9645 in")),
])
revolution4 = body2.newObject("PartDesign::Revolution", "Revolution003")
revolution4.Profile = sketch17
revolution4.ReferenceAxis = (sketch17, ["Axis0"])
revolution4.Angle = 360
body3 = doc.addObject("PartDesign::Body", "Body002")
doc.recompute()

mirroring = doc.addObject("Part::Mirroring", "Mirroring")
mirroring.Source = body2
mirroring.Base = Vector(0, 0, 0)
mirroring.Normal = Vector(0, 1, 0)
body3.BaseFeature = mirroring
doc.recompute()
mirroring.Visibility = False

doc.recompute()
